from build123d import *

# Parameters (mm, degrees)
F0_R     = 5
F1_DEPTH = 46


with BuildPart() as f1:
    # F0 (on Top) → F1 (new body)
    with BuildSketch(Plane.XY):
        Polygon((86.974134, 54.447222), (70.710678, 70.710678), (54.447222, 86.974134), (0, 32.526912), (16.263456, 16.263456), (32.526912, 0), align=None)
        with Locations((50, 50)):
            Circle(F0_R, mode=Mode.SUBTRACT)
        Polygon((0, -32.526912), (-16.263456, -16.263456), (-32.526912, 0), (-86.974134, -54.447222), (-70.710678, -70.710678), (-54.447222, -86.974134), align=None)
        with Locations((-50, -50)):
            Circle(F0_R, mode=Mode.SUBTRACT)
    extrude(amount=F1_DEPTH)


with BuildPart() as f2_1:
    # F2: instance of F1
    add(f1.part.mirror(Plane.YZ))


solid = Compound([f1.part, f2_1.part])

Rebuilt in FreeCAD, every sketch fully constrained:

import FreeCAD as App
import Part
import Sketcher
from FreeCAD import Vector
Q = App.Units.Quantity


def add_polygon(sketch, points):
    """Adds a closed chain of lines whose ends are joined by coincident constraints."""
    first, n = sketch.GeometryCount, len(points)
    for a, b in zip(points, points[1:] + points[:1]):
        sketch.addGeometry(Part.LineSegment(App.Vector(*a, 0), App.Vector(*b, 0)), False)
    for i in range(n):
        sketch.addConstraint(Sketcher.Constraint("Coincident", first + i, 2, first + (i + 1) % n, 1))

doc = App.newDocument("Part")
body = doc.addObject("PartDesign::Body", "Body")
body.AllowCompound = True

# Sketch on XY plane
sketch1 = body.newObject("Sketcher::SketchObject", "Sketch")
sketch1.AttachmentSupport = (doc.getObject("XY_Plane"), [""])
sketch1.MapMode = "FlatFace"
add_polygon(sketch1, [(87, 54), (54, 87), (0, 33), (33, 0)])  # lines 0-3
sketch1.addGeometry(Part.Circle(Vector(50, 50, 0), Vector(0, 0, 1), 5), False)  # 4
add_polygon(sketch1, [(0, -33), (-33, 0), (-87, -54), (-54, -87)])  # lines 5-8
sketch1.addGeometry(Part.Circle(Vector(-50, -50, 0), Vector(0, 0, 1), 5), False)  # 9
sketch1.addConstraint([
    Sketcher.Constraint("Equal", 4, 9),
    Sketcher.Constraint("Symmetric", 4, 3, 9, 3, -1, 1),
    Sketcher.Constraint("Symmetric", 2, 2, 5, 2, -1, 1),
    Sketcher.Constraint("Symmetric", 3, 2, 6, 2, -1, 1),
    Sketcher.Constraint("Symmetric", 0, 2, 7, 2, -1, 1),
    Sketcher.Constraint("Symmetric", 1, 2, 8, 2, -1, 1),
    Sketcher.Constraint("PointOnObject", 1, 2, -2),
    Sketcher.Constraint("PointOnObject", 2, 2, -1),
    Sketcher.Constraint("Perpendicular", 0, 1),
    Sketcher.Constraint("Perpendicular", 1, 2),
    Sketcher.Constraint("Perpendicular", 2, 3),
    Sketcher.Constraint("Diameter", 4, Q("10 mm")),
    Sketcher.Constraint("Angle", 0, Q("135 deg")),
    Sketcher.Constraint("Distance", 0, Q("46 mm")),
    Sketcher.Constraint("Distance", 1, Q("77 mm")),
    Sketcher.Constraint("DistanceX", -1, 1, 4, 3, Q("50 mm")),
    Sketcher.Constraint("DistanceY", -1, 1, 4, 3, Q("50 mm")),
])
pad1 = body.newObject("PartDesign::Pad", "Pad")
pad1.Profile = sketch1
pad1.Length = 46
body2 = doc.addObject("PartDesign::Body", "Body001")
body2.AllowCompound = True
doc.recompute()

mirroring = doc.addObject("Part::Mirroring", "Mirroring")
mirroring.Source = body
mirroring.Base = Vector(0, 0, 0)
mirroring.Normal = Vector(1, 0, 0)
body2.BaseFeature = mirroring
doc.recompute()
mirroring.Visibility = False

doc.recompute()
